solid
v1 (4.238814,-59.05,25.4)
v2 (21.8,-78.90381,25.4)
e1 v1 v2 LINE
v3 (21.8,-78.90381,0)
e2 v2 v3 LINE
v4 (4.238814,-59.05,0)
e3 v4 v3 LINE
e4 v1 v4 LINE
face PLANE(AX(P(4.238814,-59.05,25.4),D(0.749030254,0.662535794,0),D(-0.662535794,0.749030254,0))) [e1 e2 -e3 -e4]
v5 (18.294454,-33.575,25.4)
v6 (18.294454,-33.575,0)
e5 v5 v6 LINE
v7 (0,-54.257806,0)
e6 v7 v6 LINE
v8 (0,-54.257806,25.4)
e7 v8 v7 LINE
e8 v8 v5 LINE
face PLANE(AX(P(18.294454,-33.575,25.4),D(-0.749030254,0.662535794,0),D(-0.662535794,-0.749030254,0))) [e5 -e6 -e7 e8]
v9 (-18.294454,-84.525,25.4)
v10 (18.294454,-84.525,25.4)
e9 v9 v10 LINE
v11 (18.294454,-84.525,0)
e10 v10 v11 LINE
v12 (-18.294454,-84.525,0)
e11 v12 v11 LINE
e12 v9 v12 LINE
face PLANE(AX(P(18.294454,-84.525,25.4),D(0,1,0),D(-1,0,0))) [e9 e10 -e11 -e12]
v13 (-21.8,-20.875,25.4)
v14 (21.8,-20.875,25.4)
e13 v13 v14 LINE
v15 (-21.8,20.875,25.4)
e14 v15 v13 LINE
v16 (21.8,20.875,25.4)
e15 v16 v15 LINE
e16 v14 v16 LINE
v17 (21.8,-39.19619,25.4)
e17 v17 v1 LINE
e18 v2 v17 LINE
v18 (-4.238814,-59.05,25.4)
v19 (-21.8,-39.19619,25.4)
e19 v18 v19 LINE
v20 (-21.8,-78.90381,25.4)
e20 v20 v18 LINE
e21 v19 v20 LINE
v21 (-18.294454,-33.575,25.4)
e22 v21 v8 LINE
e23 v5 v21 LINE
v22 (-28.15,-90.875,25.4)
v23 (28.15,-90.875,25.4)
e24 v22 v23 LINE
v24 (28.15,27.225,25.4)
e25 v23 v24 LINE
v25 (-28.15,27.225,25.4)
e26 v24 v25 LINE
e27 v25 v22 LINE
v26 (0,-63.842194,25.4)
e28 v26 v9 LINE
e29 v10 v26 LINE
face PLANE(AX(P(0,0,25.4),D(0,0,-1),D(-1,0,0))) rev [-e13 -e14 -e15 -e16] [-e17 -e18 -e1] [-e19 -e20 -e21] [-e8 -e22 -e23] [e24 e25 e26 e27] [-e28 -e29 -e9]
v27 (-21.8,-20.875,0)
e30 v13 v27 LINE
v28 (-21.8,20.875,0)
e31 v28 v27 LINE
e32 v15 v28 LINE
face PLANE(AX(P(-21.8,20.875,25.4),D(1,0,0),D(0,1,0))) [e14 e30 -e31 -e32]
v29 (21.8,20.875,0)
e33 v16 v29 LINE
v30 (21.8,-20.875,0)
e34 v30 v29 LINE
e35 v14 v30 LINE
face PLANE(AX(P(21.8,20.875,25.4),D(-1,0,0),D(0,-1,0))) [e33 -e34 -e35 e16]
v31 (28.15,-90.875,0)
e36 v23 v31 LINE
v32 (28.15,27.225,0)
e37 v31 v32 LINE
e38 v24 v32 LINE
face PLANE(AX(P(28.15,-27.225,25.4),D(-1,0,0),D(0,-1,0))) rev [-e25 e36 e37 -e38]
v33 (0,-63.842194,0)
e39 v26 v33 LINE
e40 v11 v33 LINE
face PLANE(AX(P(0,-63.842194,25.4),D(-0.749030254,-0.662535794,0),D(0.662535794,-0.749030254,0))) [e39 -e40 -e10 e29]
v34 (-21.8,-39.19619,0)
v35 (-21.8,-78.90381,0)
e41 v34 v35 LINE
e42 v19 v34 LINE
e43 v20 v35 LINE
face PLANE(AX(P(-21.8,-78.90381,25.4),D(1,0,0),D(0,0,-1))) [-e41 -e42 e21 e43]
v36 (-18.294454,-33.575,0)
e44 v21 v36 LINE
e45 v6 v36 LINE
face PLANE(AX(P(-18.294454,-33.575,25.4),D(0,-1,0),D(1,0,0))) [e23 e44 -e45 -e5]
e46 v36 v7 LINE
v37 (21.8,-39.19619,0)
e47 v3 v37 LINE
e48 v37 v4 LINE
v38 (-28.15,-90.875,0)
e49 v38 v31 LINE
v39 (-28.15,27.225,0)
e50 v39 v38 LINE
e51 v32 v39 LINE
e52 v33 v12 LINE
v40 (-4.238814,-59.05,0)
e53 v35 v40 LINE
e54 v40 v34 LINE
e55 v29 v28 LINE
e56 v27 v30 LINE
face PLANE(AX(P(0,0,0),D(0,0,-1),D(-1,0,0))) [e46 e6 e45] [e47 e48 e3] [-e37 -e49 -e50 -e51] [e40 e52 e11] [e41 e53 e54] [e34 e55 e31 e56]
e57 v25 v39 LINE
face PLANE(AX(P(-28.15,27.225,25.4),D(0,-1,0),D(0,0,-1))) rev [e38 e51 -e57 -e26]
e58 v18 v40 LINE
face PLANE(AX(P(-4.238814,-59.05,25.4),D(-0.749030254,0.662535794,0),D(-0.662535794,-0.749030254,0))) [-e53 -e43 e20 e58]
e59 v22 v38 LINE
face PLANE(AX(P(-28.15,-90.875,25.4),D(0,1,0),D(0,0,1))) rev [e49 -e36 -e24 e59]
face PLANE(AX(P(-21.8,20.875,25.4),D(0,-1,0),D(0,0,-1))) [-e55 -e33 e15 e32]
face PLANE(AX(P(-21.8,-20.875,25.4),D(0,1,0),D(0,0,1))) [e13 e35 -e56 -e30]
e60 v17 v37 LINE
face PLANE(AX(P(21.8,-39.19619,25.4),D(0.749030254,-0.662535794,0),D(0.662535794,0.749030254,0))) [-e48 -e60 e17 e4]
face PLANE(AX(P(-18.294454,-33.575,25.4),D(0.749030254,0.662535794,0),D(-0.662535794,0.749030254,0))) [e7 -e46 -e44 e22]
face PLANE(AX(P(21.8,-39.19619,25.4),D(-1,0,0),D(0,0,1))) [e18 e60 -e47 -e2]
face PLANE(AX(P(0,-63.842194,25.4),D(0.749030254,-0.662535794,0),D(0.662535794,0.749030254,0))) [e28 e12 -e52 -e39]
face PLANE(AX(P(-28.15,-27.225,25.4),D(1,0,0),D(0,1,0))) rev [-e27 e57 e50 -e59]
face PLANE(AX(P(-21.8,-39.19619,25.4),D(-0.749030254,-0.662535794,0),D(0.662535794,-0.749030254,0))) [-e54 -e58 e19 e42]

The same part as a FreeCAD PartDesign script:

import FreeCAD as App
import Part
import Sketcher
from FreeCAD import Vector
Q = App.Units.Quantity

doc = App.newDocument("Part")
body = doc.addObject("PartDesign::Body", "Body")

# Sketch on XY plane
sketch1 = body.newObject("Sketcher::SketchObject", "Sketch")
sketch1.AttachmentSupport = (doc.getObject("XY_Plane"), [""])
sketch1.MapMode = "FlatFace"
sketch1.addGeometry(Part.LineSegment(Vector(-28, 27, 0), Vector(-28, -91, 0)), False)
sketch1.addGeometry(Part.LineSegment(Vector(-28, -91, 0), Vector(28, -91, 0)), False)
sketch1.addGeometry(Part.LineSegment(Vector(28, -91, 0), Vector(28, 27, 0)), False)
sketch1.addGeometry(Part.LineSegment(Vector(28, 27, 0), Vector(-28, 27, 0)), False)
sketch1.addGeometry(Part.LineSegment(Vector(22, -39, 0), Vector(22, -79, 0)), False)
sketch1.addGeometry(Part.LineSegment(Vector(22, -79, 0), Vector(4, -59, 0)), False)
sketch1.addGeometry(Part.LineSegment(Vector(4, -59, 0), Vector(22, -39, 0)), False)
sketch1.addGeometry(Part.LineSegment(Vector(0, -64, 0), Vector(18, -85, 0)), False)
sketch1.addGeometry(Part.LineSegment(Vector(18, -85, 0), Vector(-18, -85, 0)), False)
sketch1.addGeometry(Part.LineSegment(Vector(-18, -85, 0), Vector(0, -64, 0)), False)
sketch1.addGeometry(Part.LineSegment(Vector(-4, -59, 0), Vector(-22, -79, 0)), False)
sketch1.addGeometry(Part.LineSegment(Vector(-22, -79, 0), Vector(-22, -39, 0)), False)
sketch1.addGeometry(Part.LineSegment(Vector(-22, -39, 0), Vector(-4, -59, 0)), False)
sketch1.addGeometry(Part.LineSegment(Vector(-18, -34, 0), Vector(18, -34, 0)), False)
sketch1.addGeometry(Part.LineSegment(Vector(18, -34, 0), Vector(0, -54, 0)), False)
sketch1.addGeometry(Part.LineSegment(Vector(0, -54, 0), Vector(-18, -34, 0)), False)
sketch1.addGeometry(Part.LineSegment(Vector(-22, -21, 0), Vector(-22, 21, 0)), False)
sketch1.addGeometry(Part.LineSegment(Vector(-22, 21, 0), Vector(22, 21, 0)), False)
sketch1.addGeometry(Part.LineSegment(Vector(22, 21, 0), Vector(22, -21, 0)), False)
sketch1.addGeometry(Part.LineSegment(Vector(22, -21, 0), Vector(-22, -21, 0)), False)
sketch1.addConstraint(Sketcher.Constraint("Coincident", 0, 2, 1, 1))
sketch1.addConstraint(Sketcher.Constraint("Coincident", 1, 2, 2, 1))
sketch1.addConstraint(Sketcher.Constraint("Coincident", 2, 2, 3, 1))
sketch1.addConstraint(Sketcher.Constraint("Coincident", 3, 2, 0, 1))
sketch1.addConstraint(Sketcher.Constraint("Coincident", 4, 2, 5, 1))
sketch1.addConstraint(Sketcher.Constraint("Coincident", 5, 2, 6, 1))
sketch1.addConstraint(Sketcher.Constraint("Coincident", 6, 2, 4, 1))
sketch1.addConstraint(Sketcher.Constraint("Coincident", 7, 2, 8, 1))
sketch1.addConstraint(Sketcher.Constraint("Coincident", 8, 2, 9, 1))
sketch1.addConstraint(Sketcher.Constraint("Coincident", 9, 2, 7, 1))
sketch1.addConstraint(Sketcher.Constraint("Coincident", 10, 2, 11, 1))
sketch1.addConstraint(Sketcher.Constraint("Coincident", 11, 2, 12, 1))
sketch1.addConstraint(Sketcher.Constraint("Coincident", 12, 2, 10, 1))
sketch1.addConstraint(Sketcher.Constraint("Coincident", 13, 2, 14, 1))
sketch1.addConstraint(Sketcher.Constraint("Coincident", 14, 2, 15, 1))
sketch1.addConstraint(Sketcher.Constraint("Coincident", 15, 2, 13, 1))
sketch1.addConstraint(Sketcher.Constraint("Coincident", 16, 2, 17, 1))
sketch1.addConstraint(Sketcher.Constraint("Coincident", 17, 2, 18, 1))
sketch1.addConstraint(Sketcher.Constraint("Coincident", 18, 2, 19, 1))
sketch1.addConstraint(Sketcher.Constraint("Coincident", 19, 2, 16, 1))
sketch1.addConstraint(Sketcher.Constraint("Vertical", 0))
sketch1.addConstraint(Sketcher.Constraint("Horizontal", 1))
sketch1.addConstraint(Sketcher.Constraint("Vertical", 2))
sketch1.addConstraint(Sketcher.Constraint("Horizontal", 3))
sketch1.addConstraint(Sketcher.Constraint("Vertical", 4))
sketch1.addConstraint(Sketcher.Constraint("Horizontal", 8))
sketch1.addConstraint(Sketcher.Constraint("Vertical", 11))
sketch1.addConstraint(Sketcher.Constraint("Horizontal", 13))
sketch1.addConstraint(Sketcher.Constraint("Vertical", 16))
sketch1.addConstraint(Sketcher.Constraint("Horizontal", 17))
sketch1.addConstraint(Sketcher.Constraint("Vertical", 18))
sketch1.addConstraint(Sketcher.Constraint("Horizontal", 19))
sketch1.addConstraint(Sketcher.Constraint("Symmetric", 16, 2, 18, 2, -1, 1))
sketch1.addConstraint(Sketcher.Constraint("Symmetric", 4, 2, 10, 2, -2))
sketch1.addConstraint(Sketcher.Constraint("Symmetric", 5, 2, 12, 2, -2))
sketch1.addConstraint(Sketcher.Constraint("PointOnObject", 9, 2, -2))
sketch1.addConstraint(Sketcher.Constraint("PointOnObject", 14, 2, -2))
sketch1.addConstraint(Sketcher.Constraint("Parallel", 5, 7))
sketch1.addConstraint(Sketcher.Constraint("Parallel", 6, 9))
sketch1.addConstraint(Sketcher.Constraint("Parallel", 9, 10))
sketch1.addConstraint(Sketcher.Constraint("Parallel", 7, 12))
sketch1.addConstraint(Sketcher.Constraint("Parallel", 10, 14))
sketch1.addConstraint(Sketcher.Constraint("Parallel", 12, 15))
sketch1.addConstraint(Sketcher.Constraint("Vertical", 7, 2, 13, 2))
sketch1.addConstraint(Sketcher.Constraint("Vertical", 11, 2, 16, 2))
sketch1.addConstraint(Sketcher.Constraint("DistanceX", 1, 1, 1, 2, Q("56.3 mm")))
sketch1.addConstraint(Sketcher.Constraint("DistanceX", 17, 1, 17, 2, Q("43.6 mm")))
sketch1.addConstraint(Sketcher.Constraint("DistanceY", 0, 2, 0, 1, Q("118.1 mm")))
sketch1.addConstraint(Sketcher.Constraint("DistanceY", 16, 1, 16, 2, Q("41.75 mm")))
sketch1.addConstraint(Sketcher.Constraint("DistanceY", 13, 2, 18, 2, Q("12.7 mm")))
sketch1.addConstraint(Sketcher.Constraint("DistanceX", 0, 2, -1, 1, Q("28.15 mm")))
sketch1.addConstraint(Sketcher.Constraint("DistanceY", 5, 2, -1, 1, Q("59.05 mm")))
sketch1.addConstraint(Sketcher.Constraint("DistanceY", 1, 2, 7, 2, Q("6.35 mm")))
sketch1.addConstraint(Sketcher.Constraint("DistanceY", 16, 2, 3, 2, Q("6.35 mm")))
sketch1.addConstraint(Sketcher.Constraint("DistanceY", 4, 2, 4, 1, Q("39.707619 mm")))
sketch1.addConstraint(Sketcher.Constraint("Distance", 5, Q("26.506018 mm")))
sketch1.addConstraint(Sketcher.Constraint("DistanceX", 8, 2, 8, 1, Q("36.588907 mm")))
pad1 = body.newObject("PartDesign::Pad", "Pad")
pad1.Profile = sketch1
pad1.Length = 25.4

doc.recompute()
